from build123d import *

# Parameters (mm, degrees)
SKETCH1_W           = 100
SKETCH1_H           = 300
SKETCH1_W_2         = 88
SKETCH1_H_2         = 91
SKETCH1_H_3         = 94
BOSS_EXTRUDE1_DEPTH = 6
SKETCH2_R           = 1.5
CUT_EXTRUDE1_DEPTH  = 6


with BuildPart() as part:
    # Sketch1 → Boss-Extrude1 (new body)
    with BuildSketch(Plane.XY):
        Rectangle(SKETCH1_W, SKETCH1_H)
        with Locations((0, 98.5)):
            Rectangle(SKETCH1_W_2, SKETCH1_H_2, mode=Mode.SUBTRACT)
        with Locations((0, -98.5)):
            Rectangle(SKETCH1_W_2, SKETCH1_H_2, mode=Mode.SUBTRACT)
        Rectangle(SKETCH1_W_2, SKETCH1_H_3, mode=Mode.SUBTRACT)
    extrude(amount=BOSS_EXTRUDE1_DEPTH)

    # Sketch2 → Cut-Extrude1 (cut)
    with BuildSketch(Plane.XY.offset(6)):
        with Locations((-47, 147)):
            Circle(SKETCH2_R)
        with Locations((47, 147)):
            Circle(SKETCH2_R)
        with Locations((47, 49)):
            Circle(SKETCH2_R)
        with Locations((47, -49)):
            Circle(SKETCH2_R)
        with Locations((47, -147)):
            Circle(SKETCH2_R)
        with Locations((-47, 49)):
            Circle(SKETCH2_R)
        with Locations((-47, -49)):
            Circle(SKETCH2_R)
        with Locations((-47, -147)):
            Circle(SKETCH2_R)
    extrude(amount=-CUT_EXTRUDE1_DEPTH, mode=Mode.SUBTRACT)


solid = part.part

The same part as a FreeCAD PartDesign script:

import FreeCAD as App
import Part
import Sketcher
Q = App.Units.Quantity

doc = App.newDocument("Part")
body = doc.addObject("PartDesign::Body", "Body")

sketch1 = doc.addObject("Sketcher::SketchObject", "Sketch")
body.addObject(sketch1)
sketch1.AttachmentSupport = (doc.XY_Plane, [""])
sketch1.MapMode = "FlatFace"
sketch1.addGeometry([
    Part.LineSegment(App.Vector(-50, 150, 0), App.Vector(-50, -150, 0)),
    Part.LineSegment(App.Vector(-50, -150, 0), App.Vector(50, -150, 0)),
    Part.LineSegment(App.Vector(50, -150, 0), App.Vector(50, 150, 0)),
    Part.LineSegment(App.Vector(50, 150, 0), App.Vector(-50, 150, 0)),
    Part.LineSegment(App.Vector(44, -144, 0), App.Vector(-44, -144, 0)),
    Part.LineSegment(App.Vector(-44, -144, 0), App.Vector(-44, -53, 0)),
    Part.LineSegment(App.Vector(-44, -53, 0), App.Vector(44, -53, 0)),
    Part.LineSegment(App.Vector(44, -53, 0), App.Vector(44, -144, 0)),
    Part.LineSegment(App.Vector(44, -47, 0), App.Vector(-44, -47, 0)),
    Part.LineSegment(App.Vector(-44, -47, 0), App.Vector(-44, 47, 0)),
    Part.LineSegment(App.Vector(-44, 47, 0), App.Vector(44, 47, 0)),
    Part.LineSegment(App.Vector(44, 47, 0), App.Vector(44, -47, 0)),
    Part.LineSegment(App.Vector(44, 53, 0), App.Vector(-44, 53, 0)),
    Part.LineSegment(App.Vector(-44, 53, 0), App.Vector(-44, 144, 0)),
    Part.LineSegment(App.Vector(-44, 144, 0), App.Vector(44, 144, 0)),
    Part.LineSegment(App.Vector(44, 144, 0), App.Vector(44, 53, 0)),
], False)
sketch1.addConstraint([
    Sketcher.Constraint("Coincident", 0, 2, 1, 1),
    Sketcher.Constraint("Coincident", 1, 2, 2, 1),
    Sketcher.Constraint("Coincident", 2, 2, 3, 1),
    Sketcher.Constraint("Coincident", 3, 2, 0, 1),
    Sketcher.Constraint("Coincident", 4, 2, 5, 1),
    Sketcher.Constraint("Coincident", 5, 2, 6, 1),
    Sketcher.Constraint("Coincident", 6, 2, 7, 1),
    Sketcher.Constraint("Coincident", 7, 2, 4, 1),
    Sketcher.Constraint("Coincident", 8, 2, 9, 1),
    Sketcher.Constraint("Coincident", 9, 2, 10, 1),
    Sketcher.Constraint("Coincident", 10, 2, 11, 1),
    Sketcher.Constraint("Coincident", 11, 2, 8, 1),
    Sketcher.Constraint("Coincident", 12, 2, 13, 1),
    Sketcher.Constraint("Coincident", 13, 2, 14, 1),
    Sketcher.Constraint("Coincident", 14, 2, 15, 1),
    Sketcher.Constraint("Coincident", 15, 2, 12, 1),
    Sketcher.Constraint("Vertical", 0),
    Sketcher.Constraint("Horizontal", 1),
    Sketcher.Constraint("Vertical", 2),
    Sketcher.Constraint("Horizontal", 3),
    Sketcher.Constraint("Horizontal", 4),
    Sketcher.Constraint("Vertical", 5),
    Sketcher.Constraint("Horizontal", 6),
    Sketcher.Constraint("Vertical", 7),
    Sketcher.Constraint("Horizontal", 8),
    Sketcher.Constraint("Vertical", 9),
    Sketcher.Constraint("Horizontal", 10),
    Sketcher.Constraint("Vertical", 11),
    Sketcher.Constraint("Horizontal", 12),
    Sketcher.Constraint("Vertical", 13),
    Sketcher.Constraint("Horizontal", 14),
    Sketcher.Constraint("Vertical", 15),
    Sketcher.Constraint("Symmetric", 0, 2, 2, 2, -1, 1),
    Sketcher.Constraint("Symmetric", 8, 2, 10, 2, -1, 1),
    Sketcher.Constraint("Symmetric", 6, 2, 12, 2, -1, 1),
    Sketcher.Constraint("Symmetric", 4, 2, 14, 2, -1, 1),
    Sketcher.Constraint("Vertical", 5, 2, 8, 2),
    Sketcher.Constraint("Vertical", 7, 2, 10, 2),
    Sketcher.Constraint("DistanceX", 1, 1, 1, 2, Q("100 mm")),
    Sketcher.Constraint("DistanceX", 4, 2, 4, 1, Q("88 mm")),
    Sketcher.Constraint("DistanceY", 0, 2, 0, 1, Q("300 mm")),
    Sketcher.Constraint("DistanceY", 5, 1, 5, 2, Q("91 mm")),
    Sketcher.Constraint("DistanceY", 9, 1, 9, 2, Q("94 mm")),
    Sketcher.Constraint("DistanceY", 4, 2, -1, 1, Q("144 mm")),
])
pad1 = doc.addObject("PartDesign::Pad", "Pad")
body.addObject(pad1)
pad1.Profile = sketch1
pad1.Length = 6

sketch2 = doc.addObject("Sketcher::SketchObject", "Sketch001")
body.addObject(sketch2)
sketch2.AttachmentSupport = (doc.XY_Plane, [""])
sketch2.MapMode = "FlatFace"
sketch2.AttachmentOffset = App.Placement(App.Vector(0, 0, 6), App.Rotation())
sketch2.addGeometry([
    Part.Circle(App.Vector(-47, 147, 0), App.Vector(0, 0, 1), 1.5),
    Part.Circle(App.Vector(47, 147, 0), App.Vector(0, 0, 1), 1.5),
    Part.Circle(App.Vector(47, 49, 0), App.Vector(0, 0, 1), 1.5),
    Part.Circle(App.Vector(47, -49, 0), App.Vector(0, 0, 1), 1.5),
    Part.Circle(App.Vector(47, -147, 0), App.Vector(0, 0, 1), 1.5),
    Part.Circle(App.Vector(-47, 49, 0), App.Vector(0, 0, 1), 1.5),
    Part.Circle(App.Vector(-47, -49, 0), App.Vector(0, 0, 1), 1.5),
    Part.Circle(App.Vector(-47, -147, 0), App.Vector(0, 0, 1), 1.5),
], False)
sketch2.addConstraint([
    Sketcher.Constraint("Equal", 0, 1),
    Sketcher.Constraint("Equal", 1, 2),
    Sketcher.Constraint("Equal", 2, 3),
    Sketcher.Constraint("Equal", 3, 4),
    Sketcher.Constraint("Equal", 4, 5),
    Sketcher.Constraint("Equal", 5, 6),
    Sketcher.Constraint("Equal", 6, 7),
    Sketcher.Constraint("Symmetric", 0, 3, 4, 3, -1, 1),
    Sketcher.Constraint("Symmetric", 3, 3, 5, 3, -1, 1),
    Sketcher.Constraint("Symmetric", 2, 3, 6, 3, -1, 1),
    Sketcher.Constraint("Symmetric", 1, 3, 7, 3, -1, 1),
    Sketcher.Constraint("Symmetric", 0, 3, 1, 3, -2),
    Sketcher.Constraint("Symmetric", 2, 3, 5, 3, -2),
    Sketcher.Constraint("Vertical", 1, 3, 2, 3),
    Sketcher.Constraint("Diameter", 0, Q("3 mm")),
    Sketcher.Constraint("DistanceX", 0, 3, -1, 1, Q("47 mm")),
    Sketcher.Constraint("DistanceY", -1, 1, 0, 3, Q("147 mm")),
    Sketcher.Constraint("DistanceY", -1, 1, 2, 3, Q("49 mm")),
])
pocket1 = doc.addObject("PartDesign::Pocket", "Pocket")
body.addObject(pocket1)
pocket1.Profile = sketch2
pocket1.Length = 6

doc.recompute()
